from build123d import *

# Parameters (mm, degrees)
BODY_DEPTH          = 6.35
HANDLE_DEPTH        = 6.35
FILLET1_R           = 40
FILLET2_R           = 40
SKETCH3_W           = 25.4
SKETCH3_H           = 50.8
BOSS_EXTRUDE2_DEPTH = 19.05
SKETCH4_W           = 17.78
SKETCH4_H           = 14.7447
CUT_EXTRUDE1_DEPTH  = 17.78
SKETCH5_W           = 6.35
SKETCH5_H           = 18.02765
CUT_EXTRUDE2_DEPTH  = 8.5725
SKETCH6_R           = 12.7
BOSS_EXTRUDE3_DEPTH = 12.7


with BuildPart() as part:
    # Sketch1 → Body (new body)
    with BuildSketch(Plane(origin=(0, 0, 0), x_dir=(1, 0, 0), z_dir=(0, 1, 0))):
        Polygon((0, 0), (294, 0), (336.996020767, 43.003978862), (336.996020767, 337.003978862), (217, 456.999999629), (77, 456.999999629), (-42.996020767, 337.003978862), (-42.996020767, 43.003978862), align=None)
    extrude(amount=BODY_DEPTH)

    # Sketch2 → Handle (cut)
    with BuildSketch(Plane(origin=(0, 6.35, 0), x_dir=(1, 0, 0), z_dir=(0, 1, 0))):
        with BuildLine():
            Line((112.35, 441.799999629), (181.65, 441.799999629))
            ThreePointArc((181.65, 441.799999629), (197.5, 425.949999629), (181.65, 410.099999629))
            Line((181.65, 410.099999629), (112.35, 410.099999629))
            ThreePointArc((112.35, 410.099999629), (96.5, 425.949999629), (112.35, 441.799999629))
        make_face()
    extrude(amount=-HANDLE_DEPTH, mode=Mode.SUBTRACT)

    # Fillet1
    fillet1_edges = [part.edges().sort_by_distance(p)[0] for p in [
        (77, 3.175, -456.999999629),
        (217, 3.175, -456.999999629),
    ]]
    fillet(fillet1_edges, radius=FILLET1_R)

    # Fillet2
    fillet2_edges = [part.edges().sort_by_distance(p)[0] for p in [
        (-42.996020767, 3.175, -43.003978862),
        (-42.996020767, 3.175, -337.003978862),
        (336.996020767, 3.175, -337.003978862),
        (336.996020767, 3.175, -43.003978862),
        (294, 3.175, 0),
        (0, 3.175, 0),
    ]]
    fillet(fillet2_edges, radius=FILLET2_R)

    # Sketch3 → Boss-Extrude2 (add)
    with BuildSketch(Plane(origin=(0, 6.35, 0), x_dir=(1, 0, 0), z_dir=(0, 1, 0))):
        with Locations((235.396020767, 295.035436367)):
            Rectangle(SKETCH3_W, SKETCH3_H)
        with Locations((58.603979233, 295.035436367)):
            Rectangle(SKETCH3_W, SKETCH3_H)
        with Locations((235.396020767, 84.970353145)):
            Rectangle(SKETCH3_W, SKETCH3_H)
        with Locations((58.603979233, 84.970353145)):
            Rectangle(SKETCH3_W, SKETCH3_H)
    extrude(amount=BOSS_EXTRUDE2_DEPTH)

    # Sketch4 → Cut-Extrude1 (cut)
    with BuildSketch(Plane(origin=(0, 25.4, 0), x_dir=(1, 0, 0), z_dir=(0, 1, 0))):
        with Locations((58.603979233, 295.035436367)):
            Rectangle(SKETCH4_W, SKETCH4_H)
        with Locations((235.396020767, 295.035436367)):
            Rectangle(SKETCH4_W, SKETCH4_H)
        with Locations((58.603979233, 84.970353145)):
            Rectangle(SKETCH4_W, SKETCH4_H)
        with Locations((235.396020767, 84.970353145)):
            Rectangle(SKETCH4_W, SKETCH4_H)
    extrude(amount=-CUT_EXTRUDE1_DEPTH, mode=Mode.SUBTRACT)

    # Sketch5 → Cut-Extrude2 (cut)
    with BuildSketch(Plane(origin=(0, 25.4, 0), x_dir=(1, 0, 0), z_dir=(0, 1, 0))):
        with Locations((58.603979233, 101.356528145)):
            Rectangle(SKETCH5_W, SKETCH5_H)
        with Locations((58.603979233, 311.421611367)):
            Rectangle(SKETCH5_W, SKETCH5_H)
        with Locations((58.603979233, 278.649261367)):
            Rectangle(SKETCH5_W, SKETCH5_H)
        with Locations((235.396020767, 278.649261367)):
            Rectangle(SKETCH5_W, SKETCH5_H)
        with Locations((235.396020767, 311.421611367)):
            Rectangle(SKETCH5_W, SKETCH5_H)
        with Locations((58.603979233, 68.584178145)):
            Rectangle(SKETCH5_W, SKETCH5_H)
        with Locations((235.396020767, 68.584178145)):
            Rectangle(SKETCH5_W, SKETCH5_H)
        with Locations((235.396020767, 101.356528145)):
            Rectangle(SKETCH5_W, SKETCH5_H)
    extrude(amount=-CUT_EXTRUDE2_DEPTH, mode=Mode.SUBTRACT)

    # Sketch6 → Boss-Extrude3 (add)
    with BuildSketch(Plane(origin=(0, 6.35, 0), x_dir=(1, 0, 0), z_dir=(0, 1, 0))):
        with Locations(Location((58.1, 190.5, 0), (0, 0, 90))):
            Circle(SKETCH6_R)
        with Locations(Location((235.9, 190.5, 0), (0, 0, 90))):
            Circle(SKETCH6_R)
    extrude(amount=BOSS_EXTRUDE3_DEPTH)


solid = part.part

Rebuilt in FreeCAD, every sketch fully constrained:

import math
import FreeCAD as App
import Part
import Sketcher


def edges_at(feature, points):
    """Names of the edges that pass closest to the given points."""
    edges = feature.Shape.Edges
    near = lambda p: min(range(len(edges)), key=lambda i: edges[i].distToShape(Part.Vertex(*p))[0])
    return sorted({f"Edge{near(p) + 1}" for p in points})


def add_polygon(sketch, points):
    """Adds a closed chain of lines whose ends are joined by coincident constraints."""
    first, n = sketch.GeometryCount, len(points)
    for a, b in zip(points, points[1:] + points[:1]):
        sketch.addGeometry(Part.LineSegment(App.Vector(*a, 0), App.Vector(*b, 0)), False)
    for i in range(n):
        sketch.addConstraint(Sketcher.Constraint("Coincident", first + i, 2, first + (i + 1) % n, 1))

doc = App.newDocument("Part")
params = doc.addObject("Spreadsheet::Sheet", "Params")
for row, (alias, value) in enumerate([
    ("sketch1_width", "294 mm"),
    ("sketch1_width2", "140 mm"),
    ("sketch1_length", "169.7 mm"),
    ("pad1_length", "6.35 mm"),
    ("sketch2_radius", "15.85 mm"),
    ("sketch2_width", "69.3 mm"),
    ("pocket1_length", "6.35 mm"),
    ("fillet_radius", "40 mm"),
    ("fillet2_radius", "40 mm"),
    ("sketch3_width", "25.4 mm"),
    ("sketch3_height", "50.8 mm"),
    ("pad2_length", "19.05 mm"),
    ("sketch4_width", "17.78 mm"),
    ("pocket2_length", "17.78 mm"),
    ("sketch5_width", "6.35 mm"),
    ("pocket3_length", "8.5725 mm"),
    ("sketch6_diameter", "25.4 mm"),
    ("pad3_length", "12.7 mm"),
], start=1):
    params.set(f"A{row}", alias)
    params.set(f"B{row}", "=" + value)
    params.setAlias(f"B{row}", alias)

body = doc.addObject("PartDesign::Body", "Body")

sketch1 = body.newObject("Sketcher::SketchObject", "Sketch")
sketch1.AttachmentSupport = (doc.getObject("XZ_Plane"), [""])
sketch1.MapMode = "FlatFace"
add_polygon(sketch1, [(0, 0), (294, 0), (336.996021, -43.003979), (336.996021, -337.003979), (217, -457), (77, -457), (-42.996021, -337.003979), (-42.996021, -43.003979)])
sketch1.addConstraint([
    Sketcher.Constraint("Horizontal", 0),
    Sketcher.Constraint("Vertical", 2),
    Sketcher.Constraint("Horizontal", 4),
    Sketcher.Constraint("Vertical", 6),
    Sketcher.Constraint("Coincident", 7, 2, -1, 1),
    Sketcher.Constraint("Perpendicular", 3, 5),
    Sketcher.Constraint("Horizontal", 2, 2, 5, 2),
    Sketcher.Constraint("Horizontal", 1, 2, 6, 2),
    Sketcher.Constraint("Equal", 0, 2),
    Sketcher.Constraint("Equal", 3, 5),
    Sketcher.Constraint("Equal", 1, 7),
    Sketcher.Constraint("DistanceX", 0, 1, 0, 2, 294.0),
    Sketcher.Constraint("DistanceX", 4, 2, 4, 1, 140.0),
    Sketcher.Constraint("DistanceY", 3, 2, -1, 1, 457.0),
    Sketcher.Constraint("Distance", 3, 169.7),
])
sketch1.setExpression("Constraints[19]", "Params.sketch1_width")
sketch1.setExpression("Constraints[20]", "Params.sketch1_width2")
sketch1.setExpression("Constraints[22]", "Params.sketch1_length")
pad1 = body.newObject("PartDesign::Pad", "Pad")
pad1.Profile = sketch1
pad1.setExpression("Length", "Params.pad1_length")
pad1.Reversed = True

sketch2 = body.newObject("Sketcher::SketchObject", "Sketch001")
sketch2.AttachmentSupport = (doc.getObject("XZ_Plane"), [""])
sketch2.MapMode = "FlatFace"
sketch2.AttachmentOffset = App.Placement(App.Vector(0, 0, -6.35), App.Rotation())
sketch2.addGeometry([
    Part.LineSegment(App.Vector(181.65, -441.8, 0), App.Vector(112.35, -441.8, 0)),
    Part.ArcOfCircle(Part.Circle(App.Vector(112.35, -425.95, 0), App.Vector(0, 0, 1), 15.85), math.radians(90), math.radians(270)),
    Part.LineSegment(App.Vector(112.35, -410.1, 0), App.Vector(181.65, -410.1, 0)),
    Part.ArcOfCircle(Part.Circle(App.Vector(181.65, -425.95, 0), App.Vector(0, 0, 1), 15.85), math.radians(-90), math.radians(90)),
], False)
sketch2.addConstraint([
    Sketcher.Constraint("Tangent", 0, 2, 1, 2),
    Sketcher.Constraint("Tangent", 1, 1, 2, 1),
    Sketcher.Constraint("Tangent", 2, 2, 3, 2),
    Sketcher.Constraint("Tangent", 3, 1, 0, 1),
    Sketcher.Constraint("Horizontal", 0),
    Sketcher.Constraint("Horizontal", 2),
    Sketcher.Constraint("Radius", 1, 15.85),
    Sketcher.Constraint("DistanceX", 0, 2, 0, 1, 69.3),
    Sketcher.Constraint("DistanceY", 0, 2, -1, 1, 441.8),
    Sketcher.Constraint("DistanceX", -1, 1, 1, 3, 112.35),
])
sketch2.setExpression("Constraints[6]", "Params.sketch2_radius")
sketch2.setExpression("Constraints[7]", "Params.sketch2_width")
pocket1 = body.newObject("PartDesign::Pocket", "Pocket")
pocket1.Profile = sketch2
pocket1.setExpression("Length", "Params.pocket1_length")
pocket1.Reversed = True
doc.recompute()

fillet = body.newObject("PartDesign::Fillet", "Fillet")
fillet.Base = (pocket1, edges_at(pocket1, [(77, 3.175, -457), (217, 3.175, -457)]))
fillet.setExpression("Radius", "Params.fillet_radius")
doc.recompute()

fillet2 = body.newObject("PartDesign::Fillet", "Fillet001")
fillet2.Base = (fillet, edges_at(fillet, [
    (-42.996, 3.175, -43.004),
    (-42.996, 3.175, -337.004),
    (336.996, 3.175, -337.004),
    (336.996, 3.175, -43.004),
    (294, 3.175, 0),
    (0, 3.175, 0),
]))
fillet2.setExpression("Radius", "Params.fillet2_radius")

sketch3 = body.newObject("Sketcher::SketchObject", "Sketch002")
sketch3.AttachmentSupport = (doc.getObject("XZ_Plane"), [""])
sketch3.MapMode = "FlatFace"
sketch3.AttachmentOffset = App.Placement(App.Vector(0, 0, -6.35), App.Rotation())
add_polygon(sketch3, [(222.696021, -320.435436), (222.696021, -269.635436), (248.096021, -269.635436), (248.096021, -320.435436)])
add_polygon(sketch3, [(45.903979, -320.435436), (45.903979, -269.635436), (71.303979, -269.635436), (71.303979, -320.435436)])
add_polygon(sketch3, [(222.696021, -110.370353), (222.696021, -59.570353), (248.096021, -59.570353), (248.096021, -110.370353)])
add_polygon(sketch3, [(45.903979, -110.370353), (45.903979, -59.570353), (71.303979, -59.570353), (71.303979, -110.370353)])
sketch3.addConstraint([
    Sketcher.Constraint("Vertical", 0),
    Sketcher.Constraint("Horizontal", 1),
    Sketcher.Constraint("Vertical", 2),
    Sketcher.Constraint("Horizontal", 3),
    Sketcher.Constraint("Vertical", 4),
    Sketcher.Constraint("Horizontal", 5),
    Sketcher.Constraint("Vertical", 6),
    Sketcher.Constraint("Horizontal", 7),
    Sketcher.Constraint("Vertical", 8),
    Sketcher.Constraint("Horizontal", 9),
    Sketcher.Constraint("Vertical", 10),
    Sketcher.Constraint("Horizontal", 11),
    Sketcher.Constraint("Vertical", 12),
    Sketcher.Constraint("Horizontal", 13),
    Sketcher.Constraint("Vertical", 14),
    Sketcher.Constraint("Horizontal", 15),
    Sketcher.Constraint("Horizontal", 1, 2, 4, 2),
    Sketcher.Constraint("Horizontal", 3, 2, 6, 2),
    Sketcher.Constraint("Horizontal", 9, 2, 12, 2),
    Sketcher.Constraint("Horizontal", 11, 2, 14, 2),
    Sketcher.Constraint("Vertical", 3, 2, 8, 2),
    Sketcher.Constraint("Vertical", 2, 2, 9, 2),
    Sketcher.Constraint("Vertical", 7, 2, 12, 2),
    Sketcher.Constraint("Vertical", 6, 2, 13, 2),
    Sketcher.Constraint("Equal", 3, 5),
    Sketcher.Constraint("Equal", 6, 8),
    Sketcher.Constraint("DistanceX", 1, 1, 1, 2, 25.4),
    Sketcher.Constraint("DistanceY", 0, 1, 0, 2, 50.8),
    Sketcher.Constraint("DistanceX", -1, 1, 0, 2, 222.696021),
    Sketcher.Constraint("DistanceX", -1, 1, 4, 2, 45.903979),
    Sketcher.Constraint("DistanceY", 0, 2, -1, 1, 269.635436),
    Sketcher.Constraint("DistanceY", 8, 2, -1, 1, 59.570353),
])
sketch3.setExpression("Constraints[42]", "Params.sketch3_width")
sketch3.setExpression("Constraints[43]", "Params.sketch3_height")
pad2 = body.newObject("PartDesign::Pad", "Pad001")
pad2.Profile = sketch3
pad2.setExpression("Length", "Params.pad2_length")
pad2.Reversed = True

sketch4 = body.newObject("Sketcher::SketchObject", "Sketch003")
sketch4.AttachmentSupport = (doc.getObject("XZ_Plane"), [""])
sketch4.MapMode = "FlatFace"
sketch4.AttachmentOffset = App.Placement(App.Vector(0, 0, -25.4), App.Rotation())
add_polygon(sketch4, [(49.713979, -302.407786), (49.713979, -287.663086), (67.493979, -287.663086), (67.493979, -302.407786)])
add_polygon(sketch4, [(226.506021, -302.407786), (226.506021, -287.663086), (244.286021, -287.663086), (244.286021, -302.407786)])
add_polygon(sketch4, [(49.713979, -92.342703), (49.713979, -77.598003), (67.493979, -77.598003), (67.493979, -92.342703)])
add_polygon(sketch4, [(226.506021, -92.342703), (226.506021, -77.598003), (244.286021, -77.598003), (244.286021, -92.342703)])
sketch4.addConstraint([
    Sketcher.Constraint("Vertical", 0),
    Sketcher.Constraint("Horizontal", 1),
    Sketcher.Constraint("Vertical", 2),
    Sketcher.Constraint("Horizontal", 3),
    Sketcher.Constraint("Vertical", 4),
    Sketcher.Constraint("Horizontal", 5),
    Sketcher.Constraint("Vertical", 6),
    Sketcher.Constraint("Horizontal", 7),
    Sketcher.Constraint("Vertical", 8),
    Sketcher.Constraint("Horizontal", 9),
    Sketcher.Constraint("Vertical", 10),
    Sketcher.Constraint("Horizontal", 11),
    Sketcher.Constraint("Vertical", 12),
    Sketcher.Constraint("Horizontal", 13),
    Sketcher.Constraint("Vertical", 14),
    Sketcher.Constraint("Horizontal", 15),
    Sketcher.Constraint("Horizontal", 1, 2, 4, 2),
    Sketcher.Constraint("Horizontal", 3, 2, 6, 2),
    Sketcher.Constraint("Horizontal", 9, 2, 12, 2),
    Sketcher.Constraint("Horizontal", 11, 2, 14, 2),
    Sketcher.Constraint("Vertical", 3, 2, 8, 2),
    Sketcher.Constraint("Vertical", 2, 2, 9, 2),
    Sketcher.Constraint("Vertical", 7, 2, 12, 2),
    Sketcher.Constraint("Vertical", 6, 2, 13, 2),
    Sketcher.Constraint("Equal", 3, 5),
    Sketcher.Constraint("Equal", 6, 8),
    Sketcher.Constraint("DistanceX", 1, 1, 1, 2, 17.78),
    Sketcher.Constraint("DistanceY", 0, 1, 0, 2, 14.7447),
    Sketcher.Constraint("DistanceX", -1, 1, 0, 2, 49.713979),
    Sketcher.Constraint("DistanceX", -1, 1, 4, 2, 226.506021),
    Sketcher.Constraint("DistanceY", 0, 2, -1, 1, 287.663086),
    Sketcher.Constraint("DistanceY", 8, 2, -1, 1, 77.598003),
])
sketch4.setExpression("Constraints[42]", "Params.sketch4_width")
pocket2 = body.newObject("PartDesign::Pocket", "Pocket001")
pocket2.Profile = sketch4
pocket2.setExpression("Length", "Params.pocket2_length")
pocket2.Reversed = True

sketch5 = body.newObject("Sketcher::SketchObject", "Sketch004")
sketch5.AttachmentSupport = (doc.getObject("XZ_Plane"), [""])
sketch5.MapMode = "FlatFace"
sketch5.AttachmentOffset = App.Placement(App.Vector(0, 0, -25.4), App.Rotation())
add_polygon(sketch5, [(55.428979, -110.370353), (55.428979, -92.342703), (61.778979, -92.342703), (61.778979, -110.370353)])
add_polygon(sketch5, [(55.428979, -320.435436), (55.428979, -302.407786), (61.778979, -302.407786), (61.778979, -320.435436)])
add_polygon(sketch5, [(55.428979, -287.663086), (55.428979, -269.635436), (61.778979, -269.635436), (61.778979, -287.663086)])
add_polygon(sketch5, [(232.221021, -287.663086), (232.221021, -269.635436), (238.571021, -269.635436), (238.571021, -287.663086)])
add_polygon(sketch5, [(232.221021, -320.435436), (232.221021, -302.407786), (238.571021, -302.407786), (238.571021, -320.435436)])
add_polygon(sketch5, [(55.428979, -77.598003), (55.428979, -59.570353), (61.778979, -59.570353), (61.778979, -77.598003)])
add_polygon(sketch5, [(232.221021, -77.598003), (232.221021, -59.570353), (238.571021, -59.570353), (238.571021, -77.598003)])
add_polygon(sketch5, [(232.221021, -110.370353), (232.221021, -92.342703), (238.571021, -92.342703), (238.571021, -110.370353)])
sketch5.addConstraint([
    Sketcher.Constraint("Vertical", 0),
    Sketcher.Constraint("Horizontal", 1),
    Sketcher.Constraint("Vertical", 2),
    Sketcher.Constraint("Horizontal", 3),
    Sketcher.Constraint("Vertical", 4),
    Sketcher.Constraint("Horizontal", 5),
    Sketcher.Constraint("Vertical", 6),
    Sketcher.Constraint("Horizontal", 7),
    Sketcher.Constraint("Vertical", 8),
    Sketcher.Constraint("Horizontal", 9),
    Sketcher.Constraint("Vertical", 10),
    Sketcher.Constraint("Horizontal", 11),
    Sketcher.Constraint("Vertical", 12),
    Sketcher.Constraint("Horizontal", 13),
    Sketcher.Constraint("Vertical", 14),
    Sketcher.Constraint("Horizontal", 15),
    Sketcher.Constraint("Vertical", 16),
    Sketcher.Constraint("Horizontal", 17),
    Sketcher.Constraint("Vertical", 18),
    Sketcher.Constraint("Horizontal", 19),
    Sketcher.Constraint("Vertical", 20),
    Sketcher.Constraint("Horizontal", 21),
    Sketcher.Constraint("Vertical", 22),
    Sketcher.Constraint("Horizontal", 23),
    Sketcher.Constraint("Vertical", 24),
    Sketcher.Constraint("Horizontal", 25),
    Sketcher.Constraint("Vertical", 26),
    Sketcher.Constraint("Horizontal", 27),
    Sketcher.Constraint("Vertical", 28),
    Sketcher.Constraint("Horizontal", 29),
    Sketcher.Constraint("Vertical", 30),
    Sketcher.Constraint("Horizontal", 31),
    Sketcher.Constraint("Horizontal", 9, 2, 12, 2),
    Sketcher.Constraint("Horizontal", 11, 2, 14, 2),
    Sketcher.Constraint("Horizontal", 5, 2, 16, 2),
    Sketcher.Constraint("Horizontal", 7, 2, 18, 2),
    Sketcher.Constraint("Horizontal", 21, 2, 24, 2),
    Sketcher.Constraint("Horizontal", 23, 2, 26, 2),
    Sketcher.Constraint("Horizontal", 1, 2, 28, 2),
    Sketcher.Constraint("Horizontal", 3, 2, 30, 2),
    Sketcher.Constraint("Vertical", 3, 2, 4, 2),
    Sketcher.Constraint("Vertical", 2, 2, 5, 2),
    Sketcher.Constraint("Vertical", 7, 2, 8, 2),
    Sketcher.Constraint("Vertical", 6, 2, 9, 2),
    Sketcher.Constraint("Vertical", 15, 2, 16, 2),
    Sketcher.Constraint("Vertical", 14, 2, 17, 2),
    Sketcher.Constraint("Vertical", 11, 2, 20, 2),
    Sketcher.Constraint("Vertical", 10, 2, 21, 2),
    Sketcher.Constraint("Vertical", 19, 2, 24, 2),
    Sketcher.Constraint("Vertical", 18, 2, 25, 2),
    Sketcher.Constraint("Vertical", 27, 2, 28, 2),
    Sketcher.Constraint("Vertical", 26, 2, 29, 2),
    Sketcher.Constraint("Equal", 11, 13),
    Sketcher.Constraint("Equal", 2, 4),
    Sketcher.Constraint("Equal", 6, 8),
    Sketcher.Constraint("Equal", 18, 20),
    Sketcher.Constraint("DistanceX", 1, 1, 1, 2, 6.35),
    Sketcher.Constraint("DistanceY", 7, 2, 8, 2, 50.8),
    Sketcher.Constraint("DistanceY", 3, 2, 20, 2, 50.8),
    Sketcher.Constraint("DistanceY", 0, 1, 0, 2, 18.02765),
    Sketcher.Constraint("DistanceX", -1, 1, 0, 2, 55.428979),
    Sketcher.Constraint("DistanceX", -1, 1, 12, 2, 232.221021),
    Sketcher.Constraint("DistanceY", 0, 2, -1, 1, 92.342703),
    Sketcher.Constraint("DistanceY", 4, 2, -1, 1, 302.407786),
])
sketch5.setExpression("Constraints[88]", "Params.sketch5_width")
pocket3 = body.newObject("PartDesign::Pocket", "Pocket002")
pocket3.Profile = sketch5
pocket3.setExpression("Length", "Params.pocket3_length")
pocket3.Reversed = True

sketch6 = body.newObject("Sketcher::SketchObject", "Sketch005")
sketch6.AttachmentSupport = (doc.getObject("XZ_Plane"), [""])
sketch6.MapMode = "FlatFace"
sketch6.AttachmentOffset = App.Placement(App.Vector(0, 0, -6.35), App.Rotation())
sketch6.addGeometry([
    Part.Circle(App.Vector(58.1, -190.5, 0), App.Vector(0, 0, 1), 12.7),
    Part.Circle(App.Vector(235.9, -190.5, 0), App.Vector(0, 0, 1), 12.7),
], False)
sketch6.addConstraint([
    Sketcher.Constraint("Equal", 0, 1),
    Sketcher.Constraint("Horizontal", 0, 3, 1, 3),
    Sketcher.Constraint("Diameter", 0, 25.4),
    Sketcher.Constraint("DistanceX", -1, 1, 0, 3, 58.1),
    Sketcher.Constraint("DistanceY", 0, 3, -1, 1, 190.5),
    Sketcher.Constraint("DistanceX", -1, 1, 1, 3, 235.9),
])
sketch6.setExpression("Constraints[2]", "Params.sketch6_diameter")
pad3 = body.newObject("PartDesign::Pad", "Pad002")
pad3.Profile = sketch6
pad3.setExpression("Length", "Params.pad3_length")
pad3.Reversed = True

doc.recompute()
